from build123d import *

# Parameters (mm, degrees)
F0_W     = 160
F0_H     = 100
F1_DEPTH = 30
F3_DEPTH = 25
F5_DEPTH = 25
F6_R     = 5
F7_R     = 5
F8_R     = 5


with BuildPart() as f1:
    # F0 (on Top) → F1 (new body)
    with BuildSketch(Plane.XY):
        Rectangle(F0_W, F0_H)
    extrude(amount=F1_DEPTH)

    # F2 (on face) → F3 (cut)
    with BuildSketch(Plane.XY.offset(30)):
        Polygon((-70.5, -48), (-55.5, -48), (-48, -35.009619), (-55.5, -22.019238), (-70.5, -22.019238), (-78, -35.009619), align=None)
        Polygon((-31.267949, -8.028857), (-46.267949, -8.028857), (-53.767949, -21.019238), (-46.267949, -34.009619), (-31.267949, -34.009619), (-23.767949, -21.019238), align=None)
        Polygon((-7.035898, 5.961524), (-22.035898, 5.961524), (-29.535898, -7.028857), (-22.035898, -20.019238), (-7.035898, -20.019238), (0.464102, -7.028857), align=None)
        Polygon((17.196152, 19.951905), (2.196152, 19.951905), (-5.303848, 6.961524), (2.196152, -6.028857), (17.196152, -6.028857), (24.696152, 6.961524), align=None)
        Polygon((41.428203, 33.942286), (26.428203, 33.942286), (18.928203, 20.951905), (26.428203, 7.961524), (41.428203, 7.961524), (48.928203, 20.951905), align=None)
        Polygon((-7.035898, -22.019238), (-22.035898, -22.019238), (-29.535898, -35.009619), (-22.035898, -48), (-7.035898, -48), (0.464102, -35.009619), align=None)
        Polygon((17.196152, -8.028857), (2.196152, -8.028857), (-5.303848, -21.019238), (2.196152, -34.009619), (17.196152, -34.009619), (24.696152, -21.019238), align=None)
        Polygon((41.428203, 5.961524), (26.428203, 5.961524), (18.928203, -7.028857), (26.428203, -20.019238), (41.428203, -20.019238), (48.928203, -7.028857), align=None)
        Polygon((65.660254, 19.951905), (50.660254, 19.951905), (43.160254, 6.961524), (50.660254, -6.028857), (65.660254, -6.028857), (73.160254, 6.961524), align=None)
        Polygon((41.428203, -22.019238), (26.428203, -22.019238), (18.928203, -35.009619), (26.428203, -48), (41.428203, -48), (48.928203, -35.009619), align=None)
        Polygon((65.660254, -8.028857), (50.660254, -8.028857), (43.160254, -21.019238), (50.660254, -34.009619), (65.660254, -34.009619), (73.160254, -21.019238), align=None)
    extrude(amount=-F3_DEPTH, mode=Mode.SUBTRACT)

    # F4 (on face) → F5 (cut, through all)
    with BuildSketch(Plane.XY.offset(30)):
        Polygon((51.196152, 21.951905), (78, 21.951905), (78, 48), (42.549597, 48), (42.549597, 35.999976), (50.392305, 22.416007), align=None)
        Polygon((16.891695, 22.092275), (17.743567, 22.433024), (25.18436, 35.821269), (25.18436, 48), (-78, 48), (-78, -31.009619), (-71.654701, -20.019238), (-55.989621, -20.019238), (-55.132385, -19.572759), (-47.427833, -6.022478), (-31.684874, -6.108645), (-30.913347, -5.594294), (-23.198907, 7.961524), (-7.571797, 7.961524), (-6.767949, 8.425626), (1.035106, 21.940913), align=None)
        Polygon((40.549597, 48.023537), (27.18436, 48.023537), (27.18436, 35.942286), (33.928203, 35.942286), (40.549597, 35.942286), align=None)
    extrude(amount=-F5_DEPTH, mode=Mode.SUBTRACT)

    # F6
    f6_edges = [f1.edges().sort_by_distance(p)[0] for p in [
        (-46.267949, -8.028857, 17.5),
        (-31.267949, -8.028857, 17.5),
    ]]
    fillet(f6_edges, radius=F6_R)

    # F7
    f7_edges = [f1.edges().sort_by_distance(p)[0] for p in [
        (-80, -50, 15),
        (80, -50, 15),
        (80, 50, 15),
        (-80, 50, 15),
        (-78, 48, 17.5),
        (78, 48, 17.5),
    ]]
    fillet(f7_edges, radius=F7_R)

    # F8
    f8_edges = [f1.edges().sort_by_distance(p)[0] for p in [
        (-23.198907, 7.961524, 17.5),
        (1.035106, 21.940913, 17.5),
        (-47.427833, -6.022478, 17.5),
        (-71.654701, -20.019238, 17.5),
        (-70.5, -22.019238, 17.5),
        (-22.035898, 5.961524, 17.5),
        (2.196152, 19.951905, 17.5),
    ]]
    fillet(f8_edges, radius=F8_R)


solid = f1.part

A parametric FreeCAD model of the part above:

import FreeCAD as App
import Part
import Sketcher
from FreeCAD import Vector
Q = App.Units.Quantity


def edges_at(feature, points):
    """Names of the edges that pass closest to the given points."""
    edges = feature.Shape.Edges
    near = lambda p: min(range(len(edges)), key=lambda i: edges[i].distToShape(Part.Vertex(*p))[0])
    return sorted({f"Edge{near(p) + 1}" for p in points})

doc = App.newDocument("Part")
body = doc.addObject("PartDesign::Body", "Body")

# Sketch on XY plane
sketch1 = body.newObject("Sketcher::SketchObject", "Sketch")
sketch1.AttachmentSupport = (doc.getObject("XY_Plane"), [""])
sketch1.MapMode = "FlatFace"
sketch1.addGeometry([
    Part.LineSegment(Vector(-80, 50, 0), Vector(-80, -50, 0)),
    Part.LineSegment(Vector(-80, -50, 0), Vector(80, -50, 0)),
    Part.LineSegment(Vector(80, -50, 0), Vector(80, 50, 0)),
    Part.LineSegment(Vector(80, 50, 0), Vector(-80, 50, 0)),
], False)
sketch1.addConstraint([
    Sketcher.Constraint("Coincident", 0, 2, 1, 1),
    Sketcher.Constraint("Coincident", 1, 2, 2, 1),
    Sketcher.Constraint("Coincident", 2, 2, 3, 1),
    Sketcher.Constraint("Coincident", 3, 2, 0, 1),
    Sketcher.Constraint("Vertical", 0),
    Sketcher.Constraint("Horizontal", 1),
    Sketcher.Constraint("Vertical", 2),
    Sketcher.Constraint("Horizontal", 3),
    Sketcher.Constraint("Symmetric", 0, 2, 2, 2, -1, 1),
    Sketcher.Constraint("DistanceX", 1, 1, 1, 2, 160.0),
    Sketcher.Constraint("DistanceY", 0, 2, 0, 1, 100.0),
])
pad1 = body.newObject("PartDesign::Pad", "Pad")
pad1.Profile = sketch1
pad1.Length = 30

# Sketch on XY plane
sketch2 = body.newObject("Sketcher::SketchObject", "Sketch001")
sketch2.AttachmentSupport = (doc.getObject("XY_Plane"), [""])
sketch2.MapMode = "FlatFace"
sketch2.AttachmentOffset = App.Placement(Vector(0, 0, 30), App.Rotation())
sketch2.addGeometry([
    Part.LineSegment(Vector(-70.5, -48, 0), Vector(-55.5, -48, 0)),  # 0
    Part.LineSegment(Vector(-55.5, -48, 0), Vector(-48, -35.009619, 0)),  # 1
    Part.LineSegment(Vector(-48, -35.009619, 0), Vector(-55.5, -22.019238, 0)),  # 2
    Part.LineSegment(Vector(-55.5, -22.019238, 0), Vector(-70.5, -22.019238, 0)),  # 3
    Part.LineSegment(Vector(-70.5, -22.019238, 0), Vector(-78, -35.009619, 0)),  # 4
    Part.LineSegment(Vector(-78, -35.009619, 0), Vector(-70.5, -48, 0)),  # 5
    Part.LineSegment(Vector(-31.267949, -8.028857, 0), Vector(-46.267949, -8.028857, 0)),  # 6
    Part.LineSegment(Vector(-46.267949, -8.028857, 0), Vector(-53.767949, -21.019238, 0)),  # 7
    Part.LineSegment(Vector(-53.767949, -21.019238, 0), Vector(-46.267949, -34.009619, 0)),  # 8
    Part.LineSegment(Vector(-46.267949, -34.009619, 0), Vector(-31.267949, -34.009619, 0)),  # 9
    Part.LineSegment(Vector(-31.267949, -34.009619, 0), Vector(-23.767949, -21.019238, 0)),  # 10
    Part.LineSegment(Vector(-23.767949, -21.019238, 0), Vector(-31.267949, -8.028857, 0)),  # 11
    Part.LineSegment(Vector(-7.035898, 5.961524, 0), Vector(-22.035898, 5.961524, 0)),  # 12
    Part.LineSegment(Vector(-22.035898, 5.961524, 0), Vector(-29.535898, -7.028857, 0)),  # 13
    Part.LineSegment(Vector(-29.535898, -7.028857, 0), Vector(-22.035898, -20.019238, 0)),  # 14
    Part.LineSegment(Vector(-22.035898, -20.019238, 0), Vector(-7.035898, -20.019238, 0)),  # 15
    Part.LineSegment(Vector(-7.035898, -20.019238, 0), Vector(0.464102, -7.028857, 0)),  # 16
    Part.LineSegment(Vector(0.464102, -7.028857, 0), Vector(-7.035898, 5.961524, 0)),  # 17
    Part.LineSegment(Vector(17.196152, 19.951905, 0), Vector(2.196152, 19.951905, 0)),  # 18
    Part.LineSegment(Vector(2.196152, 19.951905, 0), Vector(-5.303848, 6.961524, 0)),  # 19
    Part.LineSegment(Vector(-5.303848, 6.961524, 0), Vector(2.196152, -6.028857, 0)),  # 20
    Part.LineSegment(Vector(2.196152, -6.028857, 0), Vector(17.196152, -6.028857, 0)),  # 21
    Part.LineSegment(Vector(17.196152, -6.028857, 0), Vector(24.696152, 6.961524, 0)),  # 22
    Part.LineSegment(Vector(24.696152, 6.961524, 0), Vector(17.196152, 19.951905, 0)),  # 23
    Part.LineSegment(Vector(41.428203, 33.942286, 0), Vector(26.428203, 33.942286, 0)),  # 24
    Part.LineSegment(Vector(26.428203, 33.942286, 0), Vector(18.928203, 20.951905, 0)),  # 25
    Part.LineSegment(Vector(18.928203, 20.951905, 0), Vector(26.428203, 7.961524, 0)),  # 26
    Part.LineSegment(Vector(26.428203, 7.961524, 0), Vector(41.428203, 7.961524, 0)),  # 27
    Part.LineSegment(Vector(41.428203, 7.961524, 0), Vector(48.928203, 20.951905, 0)),  # 28
    Part.LineSegment(Vector(48.928203, 20.951905, 0), Vector(41.428203, 33.942286, 0)),  # 29
    Part.LineSegment(Vector(-7.035898, -22.019238, 0), Vector(-22.035898, -22.019238, 0)),  # 30
    Part.LineSegment(Vector(-22.035898, -22.019238, 0), Vector(-29.535898, -35.009619, 0)),  # 31
    Part.LineSegment(Vector(-29.535898, -35.009619, 0), Vector(-22.035898, -48, 0)),  # 32
    Part.LineSegment(Vector(-22.035898, -48, 0), Vector(-7.035898, -48, 0)),  # 33
    Part.LineSegment(Vector(-7.035898, -48, 0), Vector(0.464102, -35.009619, 0)),  # 34
    Part.LineSegment(Vector(0.464102, -35.009619, 0), Vector(-7.035898, -22.019238, 0)),  # 35
    Part.LineSegment(Vector(17.196152, -8.028857, 0), Vector(2.196152, -8.028857, 0)),  # 36
    Part.LineSegment(Vector(2.196152, -8.028857, 0), Vector(-5.303848, -21.019238, 0)),  # 37
    Part.LineSegment(Vector(-5.303848, -21.019238, 0), Vector(2.196152, -34.009619, 0)),  # 38
    Part.LineSegment(Vector(2.196152, -34.009619, 0), Vector(17.196152, -34.009619, 0)),  # 39
    Part.LineSegment(Vector(17.196152, -34.009619, 0), Vector(24.696152, -21.019238, 0)),  # 40
    Part.LineSegment(Vector(24.696152, -21.019238, 0), Vector(17.196152, -8.028857, 0)),  # 41
    Part.LineSegment(Vector(41.428203, 5.961524, 0), Vector(26.428203, 5.961524, 0)),  # 42
    Part.LineSegment(Vector(26.428203, 5.961524, 0), Vector(18.928203, -7.028857, 0)),  # 43
    Part.LineSegment(Vector(18.928203, -7.028857, 0), Vector(26.428203, -20.019238, 0)),  # 44
    Part.LineSegment(Vector(26.428203, -20.019238, 0), Vector(41.428203, -20.019238, 0)),  # 45
    Part.LineSegment(Vector(41.428203, -20.019238, 0), Vector(48.928203, -7.028857, 0)),  # 46
    Part.LineSegment(Vector(48.928203, -7.028857, 0), Vector(41.428203, 5.961524, 0)),  # 47
    Part.LineSegment(Vector(65.660254, 19.951905, 0), Vector(50.660254, 19.951905, 0)),  # 48
    Part.LineSegment(Vector(50.660254, 19.951905, 0), Vector(43.160254, 6.961524, 0)),  # 49
    Part.LineSegment(Vector(43.160254, 6.961524, 0), Vector(50.660254, -6.028857, 0)),  # 50
    Part.LineSegment(Vector(50.660254, -6.028857, 0), Vector(65.660254, -6.028857, 0)),  # 51
    Part.LineSegment(Vector(65.660254, -6.028857, 0), Vector(73.160254, 6.961524, 0)),  # 52
    Part.LineSegment(Vector(73.160254, 6.961524, 0), Vector(65.660254, 19.951905, 0)),  # 53
    Part.LineSegment(Vector(41.428203, -22.019238, 0), Vector(26.428203, -22.019238, 0)),  # 54
    Part.LineSegment(Vector(26.428203, -22.019238, 0), Vector(18.928203, -35.009619, 0)),  # 55
    Part.LineSegment(Vector(18.928203, -35.009619, 0), Vector(26.428203, -48, 0)),  # 56
    Part.LineSegment(Vector(26.428203, -48, 0), Vector(41.428203, -48, 0)),  # 57
    Part.LineSegment(Vector(41.428203, -48, 0), Vector(48.928203, -35.009619, 0)),  # 58
    Part.LineSegment(Vector(48.928203, -35.009619, 0), Vector(41.428203, -22.019238, 0)),  # 59
    Part.LineSegment(Vector(65.660254, -8.028857, 0), Vector(50.660254, -8.028857, 0)),  # 60
    Part.LineSegment(Vector(50.660254, -8.028857, 0), Vector(43.160254, -21.019238, 0)),  # 61
    Part.LineSegment(Vector(43.160254, -21.019238, 0), Vector(50.660254, -34.009619, 0)),  # 62
    Part.LineSegment(Vector(50.660254, -34.009619, 0), Vector(65.660254, -34.009619, 0)),  # 63
    Part.LineSegment(Vector(65.660254, -34.009619, 0), Vector(73.160254, -21.019238, 0)),  # 64
    Part.LineSegment(Vector(73.160254, -21.019238, 0), Vector(65.660254, -8.028857, 0)),  # 65
], False)
sketch2.addConstraint([
    Sketcher.Constraint("Coincident", 0, 2, 1, 1),
    Sketcher.Constraint("Coincident", 1, 2, 2, 1),
    Sketcher.Constraint("Coincident", 2, 2, 3, 1),
    Sketcher.Constraint("Coincident", 3, 2, 4, 1),
    Sketcher.Constraint("Coincident", 4, 2, 5, 1),
    Sketcher.Constraint("Coincident", 5, 2, 0, 1),
    Sketcher.Constraint("Coincident", 6, 2, 7, 1),
    Sketcher.Constraint("Coincident", 7, 2, 8, 1),
    Sketcher.Constraint("Coincident", 8, 2, 9, 1),
    Sketcher.Constraint("Coincident", 9, 2, 10, 1),
    Sketcher.Constraint("Coincident", 10, 2, 11, 1),
    Sketcher.Constraint("Coincident", 11, 2, 6, 1),
    Sketcher.Constraint("Coincident", 12, 2, 13, 1),
    Sketcher.Constraint("Coincident", 13, 2, 14, 1),
    Sketcher.Constraint("Coincident", 14, 2, 15, 1),
    Sketcher.Constraint("Coincident", 15, 2, 16, 1),
    Sketcher.Constraint("Coincident", 16, 2, 17, 1),
    Sketcher.Constraint("Coincident", 17, 2, 12, 1),
    Sketcher.Constraint("Coincident", 18, 2, 19, 1),
    Sketcher.Constraint("Coincident", 19, 2, 20, 1),
    Sketcher.Constraint("Coincident", 20, 2, 21, 1),
    Sketcher.Constraint("Coincident", 21, 2, 22, 1),
    Sketcher.Constraint("Coincident", 22, 2, 23, 1),
    Sketcher.Constraint("Coincident", 23, 2, 18, 1),
    Sketcher.Constraint("Coincident", 24, 2, 25, 1),
    Sketcher.Constraint("Coincident", 25, 2, 26, 1),
    Sketcher.Constraint("Coincident", 26, 2, 27, 1),
    Sketcher.Constraint("Coincident", 27, 2, 28, 1),
    Sketcher.Constraint("Coincident", 28, 2, 29, 1),
    Sketcher.Constraint("Coincident", 29, 2, 24, 1),
    Sketcher.Constraint("Coincident", 30, 2, 31, 1),
    Sketcher.Constraint("Coincident", 31, 2, 32, 1),
    Sketcher.Constraint("Coincident", 32, 2, 33, 1),
    Sketcher.Constraint("Coincident", 33, 2, 34, 1),
    Sketcher.Constraint("Coincident", 34, 2, 35, 1),
    Sketcher.Constraint("Coincident", 35, 2, 30, 1),
    Sketcher.Constraint("Coincident", 36, 2, 37, 1),
    Sketcher.Constraint("Coincident", 37, 2, 38, 1),
    Sketcher.Constraint("Coincident", 38, 2, 39, 1),
    Sketcher.Constraint("Coincident", 39, 2, 40, 1),
    Sketcher.Constraint("Coincident", 40, 2, 41, 1),
    Sketcher.Constraint("Coincident", 41, 2, 36, 1),
    Sketcher.Constraint("Coincident", 42, 2, 43, 1),
    Sketcher.Constraint("Coincident", 43, 2, 44, 1),
    Sketcher.Constraint("Coincident", 44, 2, 45, 1),
    Sketcher.Constraint("Coincident", 45, 2, 46, 1),
    Sketcher.Constraint("Coincident", 46, 2, 47, 1),
    Sketcher.Constraint("Coincident", 47, 2, 42, 1),
    Sketcher.Constraint("Coincident", 48, 2, 49, 1),
    Sketcher.Constraint("Coincident", 49, 2, 50, 1),
    Sketcher.Constraint("Coincident", 50, 2, 51, 1),
    Sketcher.Constraint("Coincident", 51, 2, 52, 1),
    Sketcher.Constraint("Coincident", 52, 2, 53, 1),
    Sketcher.Constraint("Coincident", 53, 2, 48, 1),
    Sketcher.Constraint("Coincident", 54, 2, 55, 1),
    Sketcher.Constraint("Coincident", 55, 2, 56, 1),
    Sketcher.Constraint("Coincident", 56, 2, 57, 1),
    Sketcher.Constraint("Coincident", 57, 2, 58, 1),
    Sketcher.Constraint("Coincident", 58, 2, 59, 1),
    Sketcher.Constraint("Coincident", 59, 2, 54, 1),
    Sketcher.Constraint("Coincident", 60, 2, 61, 1),
    Sketcher.Constraint("Coincident", 61, 2, 62, 1),
    Sketcher.Constraint("Coincident", 62, 2, 63, 1),
    Sketcher.Constraint("Coincident", 63, 2, 64, 1),
    Sketcher.Constraint("Coincident", 64, 2, 65, 1),
    Sketcher.Constraint("Coincident", 65, 2, 60, 1),
    Sketcher.Constraint("Horizontal", 0),
    Sketcher.Constraint("Horizontal", 3),
    Sketcher.Constraint("Horizontal", 6),
    Sketcher.Constraint("Horizontal", 9),
    Sketcher.Constraint("Horizontal", 12),
    Sketcher.Constraint("Horizontal", 15),
    Sketcher.Constraint("Horizontal", 18),
    Sketcher.Constraint("Horizontal", 21),
    Sketcher.Constraint("Horizontal", 24),
    Sketcher.Constraint("Horizontal", 27),
    Sketcher.Constraint("Horizontal", 30),
    Sketcher.Constraint("Horizontal", 33),
    Sketcher.Constraint("Horizontal", 36),
    Sketcher.Constraint("Horizontal", 39),
    Sketcher.Constraint("Horizontal", 42),
    Sketcher.Constraint("Horizontal", 45),
    Sketcher.Constraint("Horizontal", 48),
    Sketcher.Constraint("Horizontal", 51),
    Sketcher.Constraint("Horizontal", 54),
    Sketcher.Constraint("Horizontal", 57),
    Sketcher.Constraint("Horizontal", 60),
    Sketcher.Constraint("Horizontal", 63),
    Sketcher.Constraint("Parallel", 1, 4),
    Sketcher.Constraint("Parallel", 2, 5),
    Sketcher.Constraint("Parallel", 4, 7),
    Sketcher.Constraint("Parallel", 5, 8),
    Sketcher.Constraint("Parallel", 7, 10),
    Sketcher.Constraint("Parallel", 8, 11),
    Sketcher.Constraint("Parallel", 10, 13),
    Sketcher.Constraint("Parallel", 11, 14),
    Sketcher.Constraint("Parallel", 13, 16),
    Sketcher.Constraint("Parallel", 14, 17),
    Sketcher.Constraint("Parallel", 16, 19),
    Sketcher.Constraint("Parallel", 17, 20),
    Sketcher.Constraint("Parallel", 19, 22),
    Sketcher.Constraint("Parallel", 20, 23),
    Sketcher.Constraint("Parallel", 22, 25),
    Sketcher.Constraint("Parallel", 23, 26),
    Sketcher.Constraint("Parallel", 25, 28),
    Sketcher.Constraint("Parallel", 26, 29),
    Sketcher.Constraint("Parallel", 28, 31),
    Sketcher.Constraint("Parallel", 29, 32),
    Sketcher.Constraint("Parallel", 31, 34),
    Sketcher.Constraint("Parallel", 32, 35),
    Sketcher.Constraint("Parallel", 34, 37),
    Sketcher.Constraint("Parallel", 35, 38),
    Sketcher.Constraint("Parallel", 37, 40),
    Sketcher.Constraint("Parallel", 38, 41),
    Sketcher.Constraint("Parallel", 40, 43),
    Sketcher.Constraint("Parallel", 41, 44),
    Sketcher.Constraint("Parallel", 43, 46),
    Sketcher.Constraint("Parallel", 44, 47),
    Sketcher.Constraint("Parallel", 46, 49),
    Sketcher.Constraint("Parallel", 47, 50),
    Sketcher.Constraint("Parallel", 49, 52),
    Sketcher.Constraint("Parallel", 50, 53),
    Sketcher.Constraint("Parallel", 52, 55),
    Sketcher.Constraint("Parallel", 53, 56),
    Sketcher.Constraint("Parallel", 55, 58),
    Sketcher.Constraint("Parallel", 56, 59),
    Sketcher.Constraint("Parallel", 58, 61),
    Sketcher.Constraint("Parallel", 59, 62),
    Sketcher.Constraint("Parallel", 61, 64),
    Sketcher.Constraint("Parallel", 62, 65),
    Sketcher.Constraint("Horizontal", 1, 2, 4, 2),
    Sketcher.Constraint("Horizontal", 7, 2, 10, 2),
    Sketcher.Constraint("Horizontal", 13, 2, 16, 2),
    Sketcher.Constraint("Horizontal", 19, 2, 22, 2),
    Sketcher.Constraint("Horizontal", 25, 2, 28, 2),
    Sketcher.Constraint("Horizontal", 3, 2, 30, 2),
    Sketcher.Constraint("Horizontal", 4, 2, 31, 2),
    Sketcher.Constraint("Horizontal", 5, 2, 32, 2),
    Sketcher.Constraint("Horizontal", 31, 2, 34, 2),
    Sketcher.Constraint("Horizontal", 11, 2, 36, 2),
    Sketcher.Constraint("Horizontal", 10, 2, 37, 2),
    Sketcher.Constraint("Horizontal", 9, 2, 38, 2),
    Sketcher.Constraint("Horizontal", 37, 2, 40, 2),
    Sketcher.Constraint("Horizontal", 17, 2, 42, 2),
    Sketcher.Constraint("Horizontal", 16, 2, 43, 2),
    Sketcher.Constraint("Horizontal", 15, 2, 44, 2),
    Sketcher.Constraint("Horizontal", 43, 2, 46, 2),
    Sketcher.Constraint("Horizontal", 23, 2, 48, 2),
    Sketcher.Constraint("Horizontal", 22, 2, 49, 2),
    Sketcher.Constraint("Horizontal", 21, 2, 50, 2),
    Sketcher.Constraint("Horizontal", 49, 2, 52, 2),
    Sketcher.Constraint("Horizontal", 35, 2, 54, 2),
    Sketcher.Constraint("Horizontal", 34, 2, 55, 2),
    Sketcher.Constraint("Horizontal", 33, 2, 56, 2),
    Sketcher.Constraint("Horizontal", 55, 2, 58, 2),
    Sketcher.Constraint("Horizontal", 41, 2, 60, 2),
    Sketcher.Constraint("Horizontal", 40, 2, 61, 2),
    Sketcher.Constraint("Horizontal", 39, 2, 62, 2),
    Sketcher.Constraint("Horizontal", 61, 2, 64, 2),
    Sketcher.Constraint("Vertical", 0, 2, 2, 2),
    Sketcher.Constraint("Vertical", 3, 2, 5, 2),
    Sketcher.Constraint("Vertical", 6, 2, 8, 2),
    Sketcher.Constraint("Vertical", 12, 2, 14, 2),
    Sketcher.Constraint("Vertical", 18, 2, 20, 2),
    Sketcher.Constraint("Vertical", 24, 2, 26, 2),
    Sketcher.Constraint("Vertical", 14, 2, 30, 2),
    Sketcher.Constraint("Vertical", 13, 2, 31, 2),
    Sketcher.Constraint("Vertical", 17, 2, 33, 2),
    Sketcher.Constraint("Vertical", 20, 2, 36, 2),
    Sketcher.Constraint("Vertical", 19, 2, 37, 2),
    Sketcher.Constraint("Vertical", 23, 2, 39, 2),
    Sketcher.Constraint("Vertical", 26, 2, 42, 2),
    Sketcher.Constraint("Vertical", 25, 2, 43, 2),
    Sketcher.Constraint("Vertical", 29, 2, 45, 2),
    Sketcher.Constraint("Vertical", 44, 2, 54, 2),
    Sketcher.Constraint("Vertical", 47, 2, 57, 2),
    Sketcher.Constraint("Vertical", 50, 2, 60, 2),
    Sketcher.Constraint("Vertical", 53, 2, 63, 2),
    Sketcher.Constraint("Equal", 3, 6),
    Sketcher.Constraint("Equal", 9, 12),
    Sketcher.Constraint("Equal", 15, 18),
    Sketcher.Constraint("Equal", 21, 24),
    Sketcher.Constraint("Equal", 45, 48),
    Sketcher.Constraint("Equal", 5, 7),
    Sketcher.Constraint("DistanceX", 0, 1, 0, 2, 15.0),
    Sketcher.Constraint("Angle", 1, Q("60 deg")),
    Sketcher.Constraint("Distance", 1, 15.0),
    Sketcher.Constraint("DistanceY", 0, 2, -1, 1, 48.0),
    Sketcher.Constraint("DistanceX", 1, 2, -1, 1, 48.0),
    Sketcher.Constraint("DistanceX", 15, 2, -1, 1, 7.035898),
    Sketcher.Constraint("DistanceX", 6, 2, -1, 1, 46.267949),
    Sketcher.Constraint("DistanceY", 7, 2, -1, 1, 21.019238),
    Sketcher.Constraint("DistanceY", 14, 2, -1, 1, 20.019238),
    Sketcher.Constraint("DistanceX", 19, 2, -1, 1, 5.303848),
    Sketcher.Constraint("DistanceY", -1, 1, 18, 2, 19.951905),
    Sketcher.Constraint("DistanceX", -1, 1, 24, 2, 26.428203),
    Sketcher.Constraint("DistanceY", -1, 1, 24, 2, 33.942286),
    Sketcher.Constraint("DistanceX", -1, 1, 48, 2, 50.660254),
])
pocket1 = body.newObject("PartDesign::Pocket", "Pocket")
pocket1.Profile = sketch2
pocket1.Length = 25

# Sketch on XY plane
sketch3 = body.newObject("Sketcher::SketchObject", "Sketch002")
sketch3.AttachmentSupport = (doc.getObject("XY_Plane"), [""])
sketch3.MapMode = "FlatFace"
sketch3.AttachmentOffset = App.Placement(Vector(0, 0, 30), App.Rotation())
sketch3.addGeometry([
    Part.LineSegment(Vector(51.196152, 21.951905, 0), Vector(78, 21.951905, 0)),  # 0
    Part.LineSegment(Vector(78, 21.951905, 0), Vector(78, 48, 0)),  # 1
    Part.LineSegment(Vector(78, 48, 0), Vector(42.549597, 48, 0)),  # 2
    Part.LineSegment(Vector(42.549597, 48, 0), Vector(42.549597, 35.999976, 0)),  # 3
    Part.LineSegment(Vector(42.549597, 35.999976, 0), Vector(50.392305, 22.416007, 0)),  # 4
    Part.LineSegment(Vector(50.392305, 22.416007, 0), Vector(51.196152, 21.951905, 0)),  # 5
    Part.LineSegment(Vector(16.891695, 22.092275, 0), Vector(17.743567, 22.433024, 0)),  # 6
    Part.LineSegment(Vector(17.743567, 22.433024, 0), Vector(25.18436, 35.821269, 0)),  # 7
    Part.LineSegment(Vector(25.18436, 35.821269, 0), Vector(25.18436, 48, 0)),  # 8
    Part.LineSegment(Vector(25.18436, 48, 0), Vector(-78, 48, 0)),  # 9
    Part.LineSegment(Vector(-78, 48, 0), Vector(-78, -31.009619, 0)),  # 10
    Part.LineSegment(Vector(-78, -31.009619, 0), Vector(-71.654701, -20.019238, 0)),  # 11
    Part.LineSegment(Vector(-71.654701, -20.019238, 0), Vector(-55.989621, -20.019238, 0)),  # 12
    Part.LineSegment(Vector(-55.989621, -20.019238, 0), Vector(-55.132385, -19.572759, 0)),  # 13
    Part.LineSegment(Vector(-55.132385, -19.572759, 0), Vector(-47.427833, -6.022478, 0)),  # 14
    Part.LineSegment(Vector(-47.427833, -6.022478, 0), Vector(-31.684874, -6.108645, 0)),  # 15
    Part.LineSegment(Vector(-31.684874, -6.108645, 0), Vector(-30.913347, -5.594294, 0)),  # 16
    Part.LineSegment(Vector(-30.913347, -5.594294, 0), Vector(-23.198907, 7.961524, 0)),  # 17
    Part.LineSegment(Vector(-23.198907, 7.961524, 0), Vector(-7.571797, 7.961524, 0)),  # 18
    Part.LineSegment(Vector(-7.571797, 7.961524, 0), Vector(-6.767949, 8.425626, 0)),  # 19
    Part.LineSegment(Vector(-6.767949, 8.425626, 0), Vector(1.035106, 21.940913, 0)),  # 20
    Part.LineSegment(Vector(1.035106, 21.940913, 0), Vector(16.891695, 22.092275, 0)),  # 21
    Part.LineSegment(Vector(40.549597, 48.023537, 0), Vector(27.18436, 48.023537, 0)),  # 22
    Part.LineSegment(Vector(27.18436, 48.023537, 0), Vector(27.18436, 35.942286, 0)),  # 23
    Part.LineSegment(Vector(27.18436, 35.942286, 0), Vector(40.549597, 35.942286, 0)),  # 24
    Part.LineSegment(Vector(40.549597, 35.942286, 0), Vector(40.549597, 48.023537, 0)),  # 25
], False)
sketch3.addConstraint([
    Sketcher.Constraint("Coincident", 0, 2, 1, 1),
    Sketcher.Constraint("Coincident", 1, 2, 2, 1),
    Sketcher.Constraint("Coincident", 2, 2, 3, 1),
    Sketcher.Constraint("Coincident", 3, 2, 4, 1),
    Sketcher.Constraint("Coincident", 4, 2, 5, 1),
    Sketcher.Constraint("Coincident", 5, 2, 0, 1),
    Sketcher.Constraint("Coincident", 6, 2, 7, 1),
    Sketcher.Constraint("Coincident", 7, 2, 8, 1),
    Sketcher.Constraint("Coincident", 8, 2, 9, 1),
    Sketcher.Constraint("Coincident", 9, 2, 10, 1),
    Sketcher.Constraint("Coincident", 10, 2, 11, 1),
    Sketcher.Constraint("Coincident", 11, 2, 12, 1),
    Sketcher.Constraint("Coincident", 12, 2, 13, 1),
    Sketcher.Constraint("Coincident", 13, 2, 14, 1),
    Sketcher.Constraint("Coincident", 14, 2, 15, 1),
    Sketcher.Constraint("Coincident", 15, 2, 16, 1),
    Sketcher.Constraint("Coincident", 16, 2, 17, 1),
    Sketcher.Constraint("Coincident", 17, 2, 18, 1),
    Sketcher.Constraint("Coincident", 18, 2, 19, 1),
    Sketcher.Constraint("Coincident", 19, 2, 20, 1),
    Sketcher.Constraint("Coincident", 20, 2, 21, 1),
    Sketcher.Constraint("Coincident", 21, 2, 6, 1),
    Sketcher.Constraint("Coincident", 22, 2, 23, 1),
    Sketcher.Constraint("Coincident", 23, 2, 24, 1),
    Sketcher.Constraint("Coincident", 24, 2, 25, 1),
    Sketcher.Constraint("Coincident", 25, 2, 22, 1),
    Sketcher.Constraint("Horizontal", 0),
    Sketcher.Constraint("Vertical", 1),
    Sketcher.Constraint("Horizontal", 2),
    Sketcher.Constraint("Vertical", 3),
    Sketcher.Constraint("Vertical", 8),
    Sketcher.Constraint("Horizontal", 9),
    Sketcher.Constraint("Vertical", 10),
    Sketcher.Constraint("Horizontal", 12),
    Sketcher.Constraint("Horizontal", 18),
    Sketcher.Constraint("Horizontal", 22),
    Sketcher.Constraint("Vertical", 23),
    Sketcher.Constraint("Horizontal", 24),
    Sketcher.Constraint("Vertical", 25),
    Sketcher.Constraint("Symmetric", 1, 2, 9, 2, -2),
    Sketcher.Constraint("Perpendicular", 5, 11),
    Sketcher.Constraint("Perpendicular", 4, 19),
    Sketcher.Constraint("Parallel", 11, 20),
    Sketcher.Constraint("Equal", 5, 19),
    Sketcher.Constraint("Angle", 4, Q("-60.000001 deg")),
    Sketcher.Constraint("Angle", 11, Q("60.000002 deg")),
    Sketcher.Constraint("DistanceX", -1, 1, 0, 2, 78.0),
    Sketcher.Constraint("DistanceY", -1, 1, 1, 2, 48.0),
    Sketcher.Constraint("DistanceX", 8, 2, 22, 2, 2.0),
    Sketcher.Constraint("DistanceX", 24, 2, 3, 2, 2.0),
    Sketcher.Constraint("Distance", 7, 15.317001),
    Sketcher.Constraint("Distance", 11, 12.690599),
    Sketcher.Constraint("DistanceX", 0, 1, 0, 2, 26.803848),
    Sketcher.Constraint("DistanceX", 9, 2, 9, 1, 103.18436),
    Sketcher.Constraint("DistanceX", 12, 1, 12, 2, 15.66508),
    Sketcher.Constraint("DistanceX", 18, 1, 18, 2, 15.62711),
    Sketcher.Constraint("DistanceY", 8, 1, 8, 2, 12.178731),
    Sketcher.Constraint("DistanceY", 10, 2, 10, 1, 79.009619),
    Sketcher.Constraint("DistanceY", 23, 2, 23, 1, 12.081251),
    Sketcher.Constraint("DistanceY", 18, 2, 6, 2, 14.4715),
    Sketcher.Constraint("DistanceY", 18, 2, 19, 2, 0.464102),
    Sketcher.Constraint("DistanceX", 16, 2, 19, 2, 24.145398),
    Sketcher.Constraint("Distance", 13, 0.966539),
    Sketcher.Constraint("Distance", 16, 0.92726),
    Sketcher.Constraint("Distance", 20, 15.606109),
    Sketcher.Constraint("Distance", 21, 15.857311),
    Sketcher.Constraint("DistanceX", 2, 2, 2, 1, 35.450403),
    Sketcher.Constraint("DistanceY", 1, 1, 1, 2, 26.048095),
    Sketcher.Constraint("DistanceY", 13, 2, -1, 1, 19.572759),
    Sketcher.Constraint("DistanceY", 14, 2, -1, 1, 6.022478),
    Sketcher.Constraint("DistanceX", 19, 2, -1, 1, 6.767949),
    Sketcher.Constraint("DistanceX", 6, 2, 3, 2, 24.80603),
    Sketcher.Constraint("DistanceX", 13, 2, 14, 2, 7.704552),
    Sketcher.Constraint("DistanceX", 14, 2, 15, 2, 15.742959),
    Sketcher.Constraint("DistanceY", 15, 2, 17, 2, 14.070169),
    Sketcher.Constraint("DistanceY", 21, 2, 6, 2, 0.340749),
    Sketcher.Constraint("DistanceY", 3, 2, 22, 2, 12.023561),
])
pocket2 = body.newObject("PartDesign::Pocket", "Pocket001")
pocket2.Profile = sketch3
pocket2.Length = 25
doc.recompute()

fillet = body.newObject("PartDesign::Fillet", "Fillet")
fillet.Base = (pocket2, edges_at(pocket2, [(-46.268, -8.029, 17.5), (-31.268, -8.029, 17.5)]))
fillet.Radius = 5
doc.recompute()

fillet2 = body.newObject("PartDesign::Fillet", "Fillet001")
fillet2.Base = (fillet, edges_at(fillet, [
    (-80, -50, 15),
    (80, -50, 15),
    (80, 50, 15),
    (-80, 50, 15),
    (-78, 48, 17.5),
    (78, 48, 17.5),
]))
fillet2.Radius = 5
doc.recompute()

fillet3 = body.newObject("PartDesign::Fillet", "Fillet002")
fillet3.Base = (fillet2, edges_at(fillet2, [
    (-23.199, 7.962, 17.5),
    (1.035, 21.941, 17.5),
    (-47.428, -6.022, 17.5),
    (-71.655, -20.019, 17.5),
    (-70.5, -22.019, 17.5),
    (-22.036, 5.962, 17.5),
    (2.196, 19.952, 17.5),
]))
fillet3.Radius = 5

doc.recompute()
